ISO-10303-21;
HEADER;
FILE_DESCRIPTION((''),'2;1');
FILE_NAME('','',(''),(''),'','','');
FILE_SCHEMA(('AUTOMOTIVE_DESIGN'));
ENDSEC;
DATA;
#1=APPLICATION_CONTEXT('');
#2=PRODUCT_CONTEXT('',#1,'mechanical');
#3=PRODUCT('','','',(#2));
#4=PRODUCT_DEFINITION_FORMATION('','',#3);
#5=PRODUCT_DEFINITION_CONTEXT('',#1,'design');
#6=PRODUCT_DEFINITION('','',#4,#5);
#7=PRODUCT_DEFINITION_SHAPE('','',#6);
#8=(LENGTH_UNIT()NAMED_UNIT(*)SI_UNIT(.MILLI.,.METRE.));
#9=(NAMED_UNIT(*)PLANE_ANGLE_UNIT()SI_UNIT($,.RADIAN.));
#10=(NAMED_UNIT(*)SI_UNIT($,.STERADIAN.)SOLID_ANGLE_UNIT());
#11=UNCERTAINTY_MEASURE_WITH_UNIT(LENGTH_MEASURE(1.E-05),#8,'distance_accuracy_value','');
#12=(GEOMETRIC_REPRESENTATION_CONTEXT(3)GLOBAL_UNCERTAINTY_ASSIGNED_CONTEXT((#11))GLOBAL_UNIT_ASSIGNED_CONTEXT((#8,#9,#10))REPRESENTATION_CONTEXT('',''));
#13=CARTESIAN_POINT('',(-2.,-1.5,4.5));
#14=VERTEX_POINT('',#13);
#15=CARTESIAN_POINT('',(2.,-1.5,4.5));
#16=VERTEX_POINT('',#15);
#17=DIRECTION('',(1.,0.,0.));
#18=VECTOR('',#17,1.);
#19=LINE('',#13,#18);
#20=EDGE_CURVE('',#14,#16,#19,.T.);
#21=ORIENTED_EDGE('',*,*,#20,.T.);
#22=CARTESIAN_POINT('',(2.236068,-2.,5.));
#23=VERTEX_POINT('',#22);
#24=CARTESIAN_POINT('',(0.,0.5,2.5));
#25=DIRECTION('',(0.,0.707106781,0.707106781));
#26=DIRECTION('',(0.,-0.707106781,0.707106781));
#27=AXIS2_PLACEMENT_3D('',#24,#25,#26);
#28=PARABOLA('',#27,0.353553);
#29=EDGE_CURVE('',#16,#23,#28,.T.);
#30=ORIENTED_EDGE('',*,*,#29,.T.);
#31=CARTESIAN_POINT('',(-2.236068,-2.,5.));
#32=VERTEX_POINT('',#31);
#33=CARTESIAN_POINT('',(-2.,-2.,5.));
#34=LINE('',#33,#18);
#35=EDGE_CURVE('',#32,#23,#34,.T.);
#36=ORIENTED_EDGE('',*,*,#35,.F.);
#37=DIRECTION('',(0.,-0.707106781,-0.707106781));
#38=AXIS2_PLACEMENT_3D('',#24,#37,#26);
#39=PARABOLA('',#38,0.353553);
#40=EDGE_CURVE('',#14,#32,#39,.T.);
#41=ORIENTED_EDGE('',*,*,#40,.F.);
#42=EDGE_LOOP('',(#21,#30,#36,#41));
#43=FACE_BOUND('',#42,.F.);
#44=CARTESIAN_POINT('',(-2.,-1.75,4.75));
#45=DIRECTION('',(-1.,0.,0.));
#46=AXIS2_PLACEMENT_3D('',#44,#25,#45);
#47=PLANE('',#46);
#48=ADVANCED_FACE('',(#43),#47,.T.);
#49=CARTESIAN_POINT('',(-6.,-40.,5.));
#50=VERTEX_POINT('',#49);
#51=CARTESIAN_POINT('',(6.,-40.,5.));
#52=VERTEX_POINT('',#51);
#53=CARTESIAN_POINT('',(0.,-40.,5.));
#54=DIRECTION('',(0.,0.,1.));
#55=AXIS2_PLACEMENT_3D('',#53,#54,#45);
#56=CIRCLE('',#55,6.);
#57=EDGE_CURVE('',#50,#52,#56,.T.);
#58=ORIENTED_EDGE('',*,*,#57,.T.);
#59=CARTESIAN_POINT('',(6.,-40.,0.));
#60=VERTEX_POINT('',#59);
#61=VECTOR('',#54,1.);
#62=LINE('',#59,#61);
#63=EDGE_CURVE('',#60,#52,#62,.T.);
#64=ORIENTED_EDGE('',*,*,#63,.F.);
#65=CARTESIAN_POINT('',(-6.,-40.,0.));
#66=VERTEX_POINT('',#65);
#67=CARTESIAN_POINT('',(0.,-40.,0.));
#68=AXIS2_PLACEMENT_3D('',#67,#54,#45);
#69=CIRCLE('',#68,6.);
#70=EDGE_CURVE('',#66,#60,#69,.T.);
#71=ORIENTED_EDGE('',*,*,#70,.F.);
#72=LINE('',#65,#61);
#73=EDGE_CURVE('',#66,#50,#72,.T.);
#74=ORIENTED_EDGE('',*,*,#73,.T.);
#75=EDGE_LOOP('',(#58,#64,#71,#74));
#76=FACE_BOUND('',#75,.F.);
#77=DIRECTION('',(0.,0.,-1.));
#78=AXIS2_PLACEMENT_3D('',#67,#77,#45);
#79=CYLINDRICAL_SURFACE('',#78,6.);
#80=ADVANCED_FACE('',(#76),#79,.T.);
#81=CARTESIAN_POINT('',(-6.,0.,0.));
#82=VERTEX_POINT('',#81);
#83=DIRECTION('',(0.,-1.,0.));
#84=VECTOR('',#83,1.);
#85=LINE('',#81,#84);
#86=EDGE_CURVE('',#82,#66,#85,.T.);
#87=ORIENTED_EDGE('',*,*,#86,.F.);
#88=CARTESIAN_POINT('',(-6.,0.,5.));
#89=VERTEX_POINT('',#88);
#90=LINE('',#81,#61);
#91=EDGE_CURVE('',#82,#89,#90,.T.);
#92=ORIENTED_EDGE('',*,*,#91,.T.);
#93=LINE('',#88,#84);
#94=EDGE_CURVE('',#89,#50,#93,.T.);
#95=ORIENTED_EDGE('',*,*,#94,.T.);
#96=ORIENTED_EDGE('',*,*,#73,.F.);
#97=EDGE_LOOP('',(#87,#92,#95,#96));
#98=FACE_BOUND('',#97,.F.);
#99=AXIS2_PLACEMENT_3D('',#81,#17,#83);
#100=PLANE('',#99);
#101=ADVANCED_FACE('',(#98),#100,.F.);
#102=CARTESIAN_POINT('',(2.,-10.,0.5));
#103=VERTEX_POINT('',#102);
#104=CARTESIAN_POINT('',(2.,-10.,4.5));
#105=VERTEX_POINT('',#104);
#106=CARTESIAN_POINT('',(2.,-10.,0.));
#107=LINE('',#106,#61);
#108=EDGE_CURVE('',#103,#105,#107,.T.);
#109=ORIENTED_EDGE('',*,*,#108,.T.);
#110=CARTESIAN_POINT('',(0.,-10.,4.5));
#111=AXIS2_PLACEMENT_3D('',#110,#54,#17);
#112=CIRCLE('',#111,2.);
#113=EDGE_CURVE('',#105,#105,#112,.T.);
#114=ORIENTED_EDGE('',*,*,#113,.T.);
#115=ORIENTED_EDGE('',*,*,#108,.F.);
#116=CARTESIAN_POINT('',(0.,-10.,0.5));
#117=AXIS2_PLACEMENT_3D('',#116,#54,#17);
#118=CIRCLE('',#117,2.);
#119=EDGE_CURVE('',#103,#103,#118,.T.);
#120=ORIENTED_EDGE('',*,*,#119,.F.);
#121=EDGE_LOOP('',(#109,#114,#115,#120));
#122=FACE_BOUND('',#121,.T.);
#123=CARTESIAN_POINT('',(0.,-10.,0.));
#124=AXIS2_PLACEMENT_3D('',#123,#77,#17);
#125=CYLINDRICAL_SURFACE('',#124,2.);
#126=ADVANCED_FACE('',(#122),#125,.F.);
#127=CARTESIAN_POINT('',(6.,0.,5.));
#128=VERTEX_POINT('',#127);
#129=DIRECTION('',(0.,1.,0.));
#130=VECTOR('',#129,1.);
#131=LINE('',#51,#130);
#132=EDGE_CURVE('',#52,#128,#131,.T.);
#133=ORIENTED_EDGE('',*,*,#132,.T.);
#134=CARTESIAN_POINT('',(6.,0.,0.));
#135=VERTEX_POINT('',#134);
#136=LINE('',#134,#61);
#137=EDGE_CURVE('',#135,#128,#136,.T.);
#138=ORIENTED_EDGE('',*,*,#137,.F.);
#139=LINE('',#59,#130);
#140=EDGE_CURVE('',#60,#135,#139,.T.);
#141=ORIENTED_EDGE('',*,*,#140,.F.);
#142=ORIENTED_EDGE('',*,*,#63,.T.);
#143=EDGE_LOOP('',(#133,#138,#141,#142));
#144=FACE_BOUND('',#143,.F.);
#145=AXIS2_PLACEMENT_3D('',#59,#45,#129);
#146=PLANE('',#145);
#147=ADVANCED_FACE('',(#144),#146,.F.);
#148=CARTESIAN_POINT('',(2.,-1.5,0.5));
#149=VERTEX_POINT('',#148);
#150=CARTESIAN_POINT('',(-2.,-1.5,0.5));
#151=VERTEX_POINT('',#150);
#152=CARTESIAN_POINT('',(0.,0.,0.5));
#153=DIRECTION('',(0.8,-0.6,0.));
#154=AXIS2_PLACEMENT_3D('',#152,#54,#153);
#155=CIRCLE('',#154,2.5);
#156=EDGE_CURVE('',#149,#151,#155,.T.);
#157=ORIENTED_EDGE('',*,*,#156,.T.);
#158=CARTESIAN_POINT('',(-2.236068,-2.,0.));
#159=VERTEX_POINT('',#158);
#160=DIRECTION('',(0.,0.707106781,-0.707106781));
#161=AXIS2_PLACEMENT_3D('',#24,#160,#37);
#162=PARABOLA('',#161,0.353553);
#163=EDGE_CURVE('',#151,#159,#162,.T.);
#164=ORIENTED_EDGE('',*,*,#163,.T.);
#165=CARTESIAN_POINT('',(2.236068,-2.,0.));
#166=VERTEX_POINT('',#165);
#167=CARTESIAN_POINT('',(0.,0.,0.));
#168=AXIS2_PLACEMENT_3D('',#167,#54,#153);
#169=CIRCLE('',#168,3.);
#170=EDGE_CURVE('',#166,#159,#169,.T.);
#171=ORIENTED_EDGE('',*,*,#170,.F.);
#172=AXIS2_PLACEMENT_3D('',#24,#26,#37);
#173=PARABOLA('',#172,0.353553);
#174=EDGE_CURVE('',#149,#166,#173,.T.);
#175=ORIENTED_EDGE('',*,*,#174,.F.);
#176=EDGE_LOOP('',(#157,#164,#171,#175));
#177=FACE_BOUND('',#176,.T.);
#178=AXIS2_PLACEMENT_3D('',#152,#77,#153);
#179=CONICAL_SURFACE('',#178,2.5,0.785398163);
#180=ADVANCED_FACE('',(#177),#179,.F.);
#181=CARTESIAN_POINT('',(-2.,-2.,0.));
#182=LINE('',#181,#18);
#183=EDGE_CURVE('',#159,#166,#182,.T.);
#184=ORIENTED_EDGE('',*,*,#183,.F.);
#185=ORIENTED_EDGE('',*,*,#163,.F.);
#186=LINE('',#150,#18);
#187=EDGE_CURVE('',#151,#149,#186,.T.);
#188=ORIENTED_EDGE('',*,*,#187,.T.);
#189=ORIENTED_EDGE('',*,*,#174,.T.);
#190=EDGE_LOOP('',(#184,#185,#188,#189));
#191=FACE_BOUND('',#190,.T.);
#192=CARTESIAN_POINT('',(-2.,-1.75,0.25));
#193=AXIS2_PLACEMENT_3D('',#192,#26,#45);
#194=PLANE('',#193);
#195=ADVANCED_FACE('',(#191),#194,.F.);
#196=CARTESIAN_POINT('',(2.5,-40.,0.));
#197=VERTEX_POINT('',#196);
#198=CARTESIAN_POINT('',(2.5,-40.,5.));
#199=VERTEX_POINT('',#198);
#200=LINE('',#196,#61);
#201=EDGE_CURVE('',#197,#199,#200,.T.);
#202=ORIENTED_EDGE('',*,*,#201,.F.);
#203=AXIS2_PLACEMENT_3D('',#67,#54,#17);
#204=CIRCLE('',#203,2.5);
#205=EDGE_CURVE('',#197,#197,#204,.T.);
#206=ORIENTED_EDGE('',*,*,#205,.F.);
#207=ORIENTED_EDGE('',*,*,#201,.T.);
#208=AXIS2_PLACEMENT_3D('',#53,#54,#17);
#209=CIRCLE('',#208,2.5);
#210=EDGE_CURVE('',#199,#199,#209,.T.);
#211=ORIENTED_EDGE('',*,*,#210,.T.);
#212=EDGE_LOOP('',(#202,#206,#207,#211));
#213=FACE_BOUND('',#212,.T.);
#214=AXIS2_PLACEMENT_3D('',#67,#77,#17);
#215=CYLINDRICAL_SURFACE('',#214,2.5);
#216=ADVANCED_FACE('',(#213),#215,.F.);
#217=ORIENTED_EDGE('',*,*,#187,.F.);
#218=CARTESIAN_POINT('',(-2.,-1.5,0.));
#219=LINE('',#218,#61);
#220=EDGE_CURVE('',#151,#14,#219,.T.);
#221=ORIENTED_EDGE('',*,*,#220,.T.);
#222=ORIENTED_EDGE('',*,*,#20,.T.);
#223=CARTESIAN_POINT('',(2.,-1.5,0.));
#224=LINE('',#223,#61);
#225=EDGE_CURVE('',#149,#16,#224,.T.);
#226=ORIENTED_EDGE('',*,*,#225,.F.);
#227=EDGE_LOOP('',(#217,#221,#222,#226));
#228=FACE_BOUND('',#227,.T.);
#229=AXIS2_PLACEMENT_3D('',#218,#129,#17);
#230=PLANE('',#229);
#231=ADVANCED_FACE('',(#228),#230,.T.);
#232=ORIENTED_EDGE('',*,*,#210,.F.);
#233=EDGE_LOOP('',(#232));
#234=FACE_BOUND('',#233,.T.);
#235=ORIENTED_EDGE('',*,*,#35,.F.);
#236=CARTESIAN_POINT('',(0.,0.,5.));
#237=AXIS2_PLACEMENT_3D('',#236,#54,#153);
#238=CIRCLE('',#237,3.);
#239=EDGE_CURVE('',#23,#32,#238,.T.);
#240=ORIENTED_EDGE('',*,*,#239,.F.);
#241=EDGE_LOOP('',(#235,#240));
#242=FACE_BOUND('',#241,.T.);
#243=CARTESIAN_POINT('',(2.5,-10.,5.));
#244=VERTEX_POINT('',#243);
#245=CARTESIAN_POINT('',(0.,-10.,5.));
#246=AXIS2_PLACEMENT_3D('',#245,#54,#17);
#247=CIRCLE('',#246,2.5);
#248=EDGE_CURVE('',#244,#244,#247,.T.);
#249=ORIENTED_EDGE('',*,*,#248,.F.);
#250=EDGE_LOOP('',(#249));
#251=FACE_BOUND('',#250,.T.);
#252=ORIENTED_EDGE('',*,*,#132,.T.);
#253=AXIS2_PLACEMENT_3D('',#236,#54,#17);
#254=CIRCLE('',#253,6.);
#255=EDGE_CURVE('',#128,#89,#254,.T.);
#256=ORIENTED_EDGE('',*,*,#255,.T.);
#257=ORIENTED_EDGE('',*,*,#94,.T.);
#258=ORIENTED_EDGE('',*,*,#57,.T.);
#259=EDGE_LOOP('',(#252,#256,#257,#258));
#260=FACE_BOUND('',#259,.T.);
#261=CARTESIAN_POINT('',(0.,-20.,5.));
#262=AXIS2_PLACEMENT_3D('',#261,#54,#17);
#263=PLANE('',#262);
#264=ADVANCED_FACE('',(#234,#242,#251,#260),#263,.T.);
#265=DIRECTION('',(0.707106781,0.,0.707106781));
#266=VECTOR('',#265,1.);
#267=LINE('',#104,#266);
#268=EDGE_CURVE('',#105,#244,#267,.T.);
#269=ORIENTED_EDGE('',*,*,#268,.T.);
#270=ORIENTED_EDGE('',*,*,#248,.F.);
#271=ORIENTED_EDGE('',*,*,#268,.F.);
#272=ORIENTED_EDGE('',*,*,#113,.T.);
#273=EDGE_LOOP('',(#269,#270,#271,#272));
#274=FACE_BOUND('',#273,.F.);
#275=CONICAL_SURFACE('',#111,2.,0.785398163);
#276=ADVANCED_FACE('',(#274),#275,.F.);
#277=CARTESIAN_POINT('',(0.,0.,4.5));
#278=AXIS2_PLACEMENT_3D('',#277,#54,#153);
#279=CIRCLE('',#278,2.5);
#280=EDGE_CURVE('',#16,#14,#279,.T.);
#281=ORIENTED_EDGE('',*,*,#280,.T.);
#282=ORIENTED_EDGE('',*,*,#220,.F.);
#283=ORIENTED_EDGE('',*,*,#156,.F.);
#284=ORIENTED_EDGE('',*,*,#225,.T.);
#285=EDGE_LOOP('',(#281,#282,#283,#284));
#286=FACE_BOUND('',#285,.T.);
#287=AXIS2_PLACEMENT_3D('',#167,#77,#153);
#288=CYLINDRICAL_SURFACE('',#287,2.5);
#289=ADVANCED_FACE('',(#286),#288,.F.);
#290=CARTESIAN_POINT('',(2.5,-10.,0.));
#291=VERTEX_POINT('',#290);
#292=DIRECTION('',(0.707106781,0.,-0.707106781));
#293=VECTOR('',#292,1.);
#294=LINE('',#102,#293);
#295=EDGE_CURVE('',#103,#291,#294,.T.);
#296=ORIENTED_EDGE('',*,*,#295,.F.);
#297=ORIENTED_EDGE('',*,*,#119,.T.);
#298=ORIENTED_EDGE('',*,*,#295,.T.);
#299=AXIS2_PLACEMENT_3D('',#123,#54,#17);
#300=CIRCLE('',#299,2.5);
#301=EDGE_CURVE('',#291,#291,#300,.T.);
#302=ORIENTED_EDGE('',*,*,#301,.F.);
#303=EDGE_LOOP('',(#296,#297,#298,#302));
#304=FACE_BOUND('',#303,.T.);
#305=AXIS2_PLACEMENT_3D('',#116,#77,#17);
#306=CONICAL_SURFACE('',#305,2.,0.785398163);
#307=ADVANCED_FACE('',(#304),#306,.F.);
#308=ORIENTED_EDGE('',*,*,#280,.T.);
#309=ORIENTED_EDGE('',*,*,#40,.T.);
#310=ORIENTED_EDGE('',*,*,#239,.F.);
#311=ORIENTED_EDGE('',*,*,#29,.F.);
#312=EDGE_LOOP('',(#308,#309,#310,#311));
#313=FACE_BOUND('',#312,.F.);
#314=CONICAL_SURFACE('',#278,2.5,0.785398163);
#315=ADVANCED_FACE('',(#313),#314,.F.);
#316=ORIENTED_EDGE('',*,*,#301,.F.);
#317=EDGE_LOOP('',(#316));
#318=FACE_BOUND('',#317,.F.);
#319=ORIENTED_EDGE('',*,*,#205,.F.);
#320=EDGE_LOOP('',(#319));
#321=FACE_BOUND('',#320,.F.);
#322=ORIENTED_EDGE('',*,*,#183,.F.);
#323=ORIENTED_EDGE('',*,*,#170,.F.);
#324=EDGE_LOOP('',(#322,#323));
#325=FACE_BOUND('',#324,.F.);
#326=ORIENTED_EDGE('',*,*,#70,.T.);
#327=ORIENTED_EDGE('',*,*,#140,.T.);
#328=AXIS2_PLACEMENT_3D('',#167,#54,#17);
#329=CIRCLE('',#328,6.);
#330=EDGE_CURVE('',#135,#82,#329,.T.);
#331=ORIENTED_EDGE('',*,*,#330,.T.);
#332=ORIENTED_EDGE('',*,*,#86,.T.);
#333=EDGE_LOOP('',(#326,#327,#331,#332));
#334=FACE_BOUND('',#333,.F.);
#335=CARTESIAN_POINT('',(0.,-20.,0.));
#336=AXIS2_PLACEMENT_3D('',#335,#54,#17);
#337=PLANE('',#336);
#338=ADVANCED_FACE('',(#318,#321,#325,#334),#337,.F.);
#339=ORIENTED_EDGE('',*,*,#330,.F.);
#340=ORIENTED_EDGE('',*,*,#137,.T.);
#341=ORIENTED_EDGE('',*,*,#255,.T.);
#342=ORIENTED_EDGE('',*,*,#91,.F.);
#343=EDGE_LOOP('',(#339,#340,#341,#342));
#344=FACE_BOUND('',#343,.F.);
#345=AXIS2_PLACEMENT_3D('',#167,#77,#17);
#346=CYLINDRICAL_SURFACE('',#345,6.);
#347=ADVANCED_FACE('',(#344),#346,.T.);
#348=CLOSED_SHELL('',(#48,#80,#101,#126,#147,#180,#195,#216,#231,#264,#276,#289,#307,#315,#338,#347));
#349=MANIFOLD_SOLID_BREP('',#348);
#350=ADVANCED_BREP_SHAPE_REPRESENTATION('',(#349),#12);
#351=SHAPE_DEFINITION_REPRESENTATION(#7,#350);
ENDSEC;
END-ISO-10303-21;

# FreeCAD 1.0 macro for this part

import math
import FreeCAD as App
import Part
import Sketcher
from FreeCAD import Vector
Q = App.Units.Quantity


def edges_at(feature, points):
    """Names of the edges that pass closest to the given points."""
    edges = feature.Shape.Edges
    near = lambda p: min(range(len(edges)), key=lambda i: edges[i].distToShape(Part.Vertex(*p))[0])
    return sorted({f"Edge{near(p) + 1}" for p in points})

doc = App.newDocument("Part")
params = doc.addObject("Spreadsheet::Sheet", "Params")
for row, (alias, value) in enumerate([
    ("sketch1_diameter", "5 mm"),
    ("sketch1_diameter2", "4 mm"),
    ("sketch1_radius", "6 mm"),
    ("sketch1_width", "4 mm"),
    ("sketch1_height", "40 mm"),
    ("pad1_length", "5 mm"),
    ("chamfer_size", "0.5 mm"),
], start=1):
    params.set(f"A{row}", alias)
    params.set(f"B{row}", "=" + value)
    params.setAlias(f"B{row}", alias)

body = doc.addObject("PartDesign::Body", "Body")

# Sketch on XY plane
sketch1 = body.newObject("Sketcher::SketchObject", "Sketch")
sketch1.AttachmentSupport = (doc.getObject("XY_Plane"), [""])
sketch1.MapMode = "FlatFace"
sketch1.addGeometry(Part.LineSegment(Vector(6, -40, 0), Vector(6, 0, 0)), False)
sketch1.addGeometry(Part.ArcOfCircle(Part.Circle(Vector(0, 0, 0), Vector(0, 0, 1), 6), math.radians(0), math.radians(180)), False)
sketch1.addGeometry(Part.LineSegment(Vector(-6, 0, 0), Vector(-6, -40, 0)), False)
sketch1.addGeometry(Part.ArcOfCircle(Part.Circle(Vector(0, -40, 0), Vector(0, 0, 1), 6), math.radians(180), math.radians(360)), False)
sketch1.addGeometry(Part.Circle(Vector(0, -40, 0), Vector(0, 0, 1), 2.5), False)
sketch1.addGeometry(Part.LineSegment(Vector(2, -1.5, 0), Vector(-2, -1.5, 0)), False)
sketch1.addGeometry(Part.ArcOfCircle(Part.Circle(Vector(0, 0, 0), Vector(0, 0, 1), 2.5), math.radians(-37), math.radians(217)), False)
sketch1.addGeometry(Part.Circle(Vector(0, -10, 0), Vector(0, 0, 1), 2), False)
sketch1.addConstraint(Sketcher.Constraint("Tangent", 0, 2, 1, 1))
sketch1.addConstraint(Sketcher.Constraint("Tangent", 1, 2, 2, 1))
sketch1.addConstraint(Sketcher.Constraint("Tangent", 2, 2, 3, 1))
sketch1.addConstraint(Sketcher.Constraint("Tangent", 3, 2, 0, 1))
sketch1.addConstraint(Sketcher.Constraint("Coincident", 5, 1, 6, 1))
sketch1.addConstraint(Sketcher.Constraint("Coincident", 6, 2, 5, 2))
sketch1.addConstraint(Sketcher.Constraint("Vertical", 0))
sketch1.addConstraint(Sketcher.Constraint("Vertical", 2))
sketch1.addConstraint(Sketcher.Constraint("Horizontal", 5))
sketch1.addConstraint(Sketcher.Constraint("Coincident", 1, 3, -1, 1))
sketch1.addConstraint(Sketcher.Constraint("Coincident", 6, 3, -1, 1))
sketch1.addConstraint(Sketcher.Constraint("Coincident", 4, 3, 3, 3))
sketch1.addConstraint(Sketcher.Constraint("Equal", 4, 6))
sketch1.addConstraint(Sketcher.Constraint("PointOnObject", 7, 3, -2))
sketch1.addConstraint(Sketcher.Constraint("Diameter", 4, Q("5 mm")))
sketch1.addConstraint(Sketcher.Constraint("Diameter", 7, Q("4 mm")))
sketch1.addConstraint(Sketcher.Constraint("Radius", 1, Q("6 mm")))
sketch1.addConstraint(Sketcher.Constraint("DistanceX", 5, 2, 5, 1, Q("4 mm")))
sketch1.addConstraint(Sketcher.Constraint("DistanceY", 0, 1, 0, 2, Q("40 mm")))
sketch1.addConstraint(Sketcher.Constraint("DistanceY", 7, 3, -1, 1, Q("10 mm")))
sketch1.setExpression("Constraints[14]", "Params.sketch1_diameter")
sketch1.setExpression("Constraints[15]", "Params.sketch1_diameter2")
sketch1.setExpression("Constraints[16]", "Params.sketch1_radius")
sketch1.setExpression("Constraints[17]", "Params.sketch1_width")
sketch1.setExpression("Constraints[18]", "Params.sketch1_height")
pad1 = body.newObject("PartDesign::Pad", "Pad")
pad1.Profile = sketch1
pad1.setExpression("Length", "Params.pad1_length")
doc.recompute()

chamfer = body.newObject("PartDesign::Chamfer", "Chamfer")
chamfer.Base = (pad1, edges_at(pad1, [
    (0, -1.5, 0),
    (0, 2.5, 0),
    (-2, -10, 0),
    (0, 2.5, 5),
    (0, -1.5, 5),
    (-2, -10, 5),
]))
chamfer.setExpression("Size", "Params.chamfer_size")

doc.recompute()
